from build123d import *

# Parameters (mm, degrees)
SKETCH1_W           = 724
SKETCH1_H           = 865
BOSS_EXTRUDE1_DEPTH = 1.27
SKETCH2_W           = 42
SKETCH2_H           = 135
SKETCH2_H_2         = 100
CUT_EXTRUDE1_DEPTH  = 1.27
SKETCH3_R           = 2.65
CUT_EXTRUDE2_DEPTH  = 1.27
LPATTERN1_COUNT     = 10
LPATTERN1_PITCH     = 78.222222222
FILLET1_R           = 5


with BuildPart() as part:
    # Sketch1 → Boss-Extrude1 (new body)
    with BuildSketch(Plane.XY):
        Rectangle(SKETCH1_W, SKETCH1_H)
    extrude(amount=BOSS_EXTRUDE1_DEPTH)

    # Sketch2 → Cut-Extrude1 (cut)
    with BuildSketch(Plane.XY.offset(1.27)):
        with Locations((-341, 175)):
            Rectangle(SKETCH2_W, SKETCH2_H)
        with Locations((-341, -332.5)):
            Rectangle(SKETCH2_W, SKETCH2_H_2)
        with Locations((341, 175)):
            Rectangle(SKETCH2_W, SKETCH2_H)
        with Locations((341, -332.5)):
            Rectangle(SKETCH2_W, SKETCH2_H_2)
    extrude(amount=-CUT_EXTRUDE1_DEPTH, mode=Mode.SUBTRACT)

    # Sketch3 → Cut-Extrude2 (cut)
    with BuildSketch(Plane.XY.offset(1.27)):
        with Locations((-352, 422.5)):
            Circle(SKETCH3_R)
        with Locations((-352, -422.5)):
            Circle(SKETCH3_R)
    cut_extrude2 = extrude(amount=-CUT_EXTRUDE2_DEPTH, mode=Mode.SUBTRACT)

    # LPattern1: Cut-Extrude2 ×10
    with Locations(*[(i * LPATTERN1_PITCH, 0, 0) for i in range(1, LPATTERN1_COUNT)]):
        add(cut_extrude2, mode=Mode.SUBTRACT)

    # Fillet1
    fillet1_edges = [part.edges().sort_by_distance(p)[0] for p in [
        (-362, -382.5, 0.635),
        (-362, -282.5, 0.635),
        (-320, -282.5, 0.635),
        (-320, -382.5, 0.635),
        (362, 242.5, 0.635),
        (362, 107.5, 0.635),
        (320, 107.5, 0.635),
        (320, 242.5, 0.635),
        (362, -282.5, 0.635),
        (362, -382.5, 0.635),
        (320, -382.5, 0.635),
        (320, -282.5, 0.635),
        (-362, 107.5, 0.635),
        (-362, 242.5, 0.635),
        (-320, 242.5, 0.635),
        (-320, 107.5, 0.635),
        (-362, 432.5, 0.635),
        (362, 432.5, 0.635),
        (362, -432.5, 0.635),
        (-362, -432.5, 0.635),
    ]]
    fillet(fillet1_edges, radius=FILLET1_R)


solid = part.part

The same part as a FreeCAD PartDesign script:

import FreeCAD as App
import Part
import Sketcher

V = App.Vector


def edges_at(feature, points):
    """Names of the edges that pass closest to the given points."""
    edges = feature.Shape.Edges
    near = lambda p: min(range(len(edges)), key=lambda i: edges[i].distToShape(Part.Vertex(*p))[0])
    return sorted({f"Edge{near(p) + 1}" for p in points})


def add_polygon(sketch, points):
    """Adds a closed chain of lines whose ends are joined by coincident constraints."""
    first, n = sketch.GeometryCount, len(points)
    for a, b in zip(points, points[1:] + points[:1]):
        sketch.addGeometry(Part.LineSegment(App.Vector(*a, 0), App.Vector(*b, 0)), False)
    for i in range(n):
        sketch.addConstraint(Sketcher.Constraint("Coincident", first + i, 2, first + (i + 1) % n, 1))

doc = App.newDocument("Part")
params = doc.addObject("Spreadsheet::Sheet", "Params")
for row, (alias, value) in enumerate([
    ("sketch1_width", "724 mm"),
    ("sketch1_height", "865 mm"),
    ("pad1_length", "1.27 mm"),
    ("sketch2_width", "42 mm"),
    ("sketch2_height", "135 mm"),
    ("sketch2_height2", "100 mm"),
    ("pocket1_length", "1.27 mm"),
    ("sketch3_diameter", "5.3 mm"),
    ("pocket2_length", "1.27 mm"),
    ("linearpattern_pitch", "78.222222 mm"),
    ("fillet_radius", "5 mm"),
], start=1):
    params.set(f"A{row}", alias)
    params.set(f"B{row}", "=" + value)
    params.setAlias(f"B{row}", alias)

body = doc.addObject("PartDesign::Body", "Body")

# Sketch on XY plane
sketch1 = body.newObject("Sketcher::SketchObject", "Sketch")
sketch1.AttachmentSupport = (doc.getObject("XY_Plane"), [""])
sketch1.MapMode = "FlatFace"
add_polygon(sketch1, [(-362, 432.5), (-362, -432.5), (362, -432.5), (362, 432.5)])  # lines 0-3
sketch1.addConstraint(Sketcher.Constraint("Vertical", 0))
sketch1.addConstraint(Sketcher.Constraint("Horizontal", 1))
sketch1.addConstraint(Sketcher.Constraint("Vertical", 2))
sketch1.addConstraint(Sketcher.Constraint("Horizontal", 3))
sketch1.addConstraint(Sketcher.Constraint("Symmetric", 0, 2, 2, 2, -1, 1))
sketch1.addConstraint(Sketcher.Constraint("DistanceX", 1, 1, 1, 2, 724.0))
sketch1.addConstraint(Sketcher.Constraint("DistanceY", 0, 2, 0, 1, 865.0))
sketch1.setExpression("Constraints[9]", "Params.sketch1_width")
sketch1.setExpression("Constraints[10]", "Params.sketch1_height")
pad1 = body.newObject("PartDesign::Pad", "Pad")
pad1.Profile = sketch1
pad1.setExpression("Length", "Params.pad1_length")

# Sketch on XY plane
sketch2 = body.newObject("Sketcher::SketchObject", "Sketch001")
sketch2.AttachmentSupport = (doc.getObject("XY_Plane"), [""])
sketch2.MapMode = "FlatFace"
sketch2.AttachmentOffset = App.Placement(V(0, 0, 1.27), App.Rotation())
add_polygon(sketch2, [(-362, 242.5), (-362, 107.5), (-320, 107.5), (-320, 242.5)])  # lines 0-3
add_polygon(sketch2, [(-362, -282.5), (-362, -382.5), (-320, -382.5), (-320, -282.5)])  # lines 4-7
add_polygon(sketch2, [(320, 242.5), (320, 107.5), (362, 107.5), (362, 242.5)])  # lines 8-11
add_polygon(sketch2, [(320, -282.5), (320, -382.5), (362, -382.5), (362, -282.5)])  # lines 12-15
sketch2.addConstraint(Sketcher.Constraint("Vertical", 0))
sketch2.addConstraint(Sketcher.Constraint("Horizontal", 1))
sketch2.addConstraint(Sketcher.Constraint("Vertical", 2))
sketch2.addConstraint(Sketcher.Constraint("Horizontal", 3))
sketch2.addConstraint(Sketcher.Constraint("Vertical", 4))
sketch2.addConstraint(Sketcher.Constraint("Horizontal", 5))
sketch2.addConstraint(Sketcher.Constraint("Vertical", 6))
sketch2.addConstraint(Sketcher.Constraint("Horizontal", 7))
sketch2.addConstraint(Sketcher.Constraint("Vertical", 8))
sketch2.addConstraint(Sketcher.Constraint("Horizontal", 9))
sketch2.addConstraint(Sketcher.Constraint("Vertical", 10))
sketch2.addConstraint(Sketcher.Constraint("Horizontal", 11))
sketch2.addConstraint(Sketcher.Constraint("Vertical", 12))
sketch2.addConstraint(Sketcher.Constraint("Horizontal", 13))
sketch2.addConstraint(Sketcher.Constraint("Vertical", 14))
sketch2.addConstraint(Sketcher.Constraint("Horizontal", 15))
sketch2.addConstraint(Sketcher.Constraint("Symmetric", 1, 2, 8, 2, -2))
sketch2.addConstraint(Sketcher.Constraint("Symmetric", 3, 2, 10, 2, -2))
sketch2.addConstraint(Sketcher.Constraint("Symmetric", 5, 2, 12, 2, -2))
sketch2.addConstraint(Sketcher.Constraint("Symmetric", 7, 2, 14, 2, -2))
sketch2.addConstraint(Sketcher.Constraint("Vertical", 3, 2, 4, 2))
sketch2.addConstraint(Sketcher.Constraint("Vertical", 2, 2, 5, 2))
sketch2.addConstraint(Sketcher.Constraint("DistanceX", 1, 1, 1, 2, 42.0))
sketch2.addConstraint(Sketcher.Constraint("DistanceY", 0, 2, 0, 1, 135.0))
sketch2.addConstraint(Sketcher.Constraint("DistanceY", 4, 2, 4, 1, 100.0))
sketch2.addConstraint(Sketcher.Constraint("DistanceX", 0, 2, -1, 1, 362.0))
sketch2.addConstraint(Sketcher.Constraint("DistanceY", 4, 2, 0, 2, 490.0))
sketch2.addConstraint(Sketcher.Constraint("DistanceY", -1, 1, 0, 2, 107.5))
sketch2.setExpression("Constraints[38]", "Params.sketch2_width")
sketch2.setExpression("Constraints[39]", "Params.sketch2_height")
sketch2.setExpression("Constraints[40]", "Params.sketch2_height2")
pocket1 = body.newObject("PartDesign::Pocket", "Pocket")
pocket1.Profile = sketch2
pocket1.setExpression("Length", "Params.pocket1_length")

# Sketch on XY plane
sketch3 = body.newObject("Sketcher::SketchObject", "Sketch002")
sketch3.AttachmentSupport = (doc.getObject("XY_Plane"), [""])
sketch3.MapMode = "FlatFace"
sketch3.AttachmentOffset = App.Placement(V(0, 0, 1.27), App.Rotation())
sketch3.addGeometry(Part.Circle(V(-352, 422.5, 0), V(0, 0, 1), 2.65), False)
sketch3.addGeometry(Part.Circle(V(-352, -422.5, 0), V(0, 0, 1), 2.65), False)
sketch3.addConstraint(Sketcher.Constraint("Equal", 0, 1))
sketch3.addConstraint(Sketcher.Constraint("Symmetric", 0, 3, 1, 3, -1))
sketch3.addConstraint(Sketcher.Constraint("Diameter", 0, 5.3))
sketch3.addConstraint(Sketcher.Constraint("DistanceX", 0, 3, -1, 1, 352.0))
sketch3.addConstraint(Sketcher.Constraint("DistanceY", 1, 3, 0, 3, 845.0))
sketch3.setExpression("Constraints[2]", "Params.sketch3_diameter")
pocket2 = body.newObject("PartDesign::Pocket", "Pocket001")
pocket2.Profile = sketch3
pocket2.setExpression("Length", "Params.pocket2_length")
doc.recompute()

linearpattern = body.newObject("PartDesign::LinearPattern", "LinearPattern")
linearpattern.Originals = [pocket2]
linearpattern.Direction = (doc.getObject("X_Axis"), [""])
linearpattern.Mode = "offset"
linearpattern.setExpression("Offset", "Params.linearpattern_pitch")
linearpattern.Occurrences = 10
body.Tip = linearpattern
doc.recompute()

fillet = body.newObject("PartDesign::Fillet", "Fillet")
fillet.Base = (linearpattern, edges_at(linearpattern, [
    (-362, -382.5, 0.635),
    (-362, -282.5, 0.635),
    (-320, -282.5, 0.635),
    (-320, -382.5, 0.635),
    (362, 242.5, 0.635),
    (362, 107.5, 0.635),
    (320, 107.5, 0.635),
    (320, 242.5, 0.635),
    (362, -282.5, 0.635),
    (362, -382.5, 0.635),
    (320, -382.5, 0.635),
    (320, -282.5, 0.635),
    (-362, 107.5, 0.635),
    (-362, 242.5, 0.635),
    (-320, 242.5, 0.635),
    (-320, 107.5, 0.635),
    (-362, 432.5, 0.635),
    (362, 432.5, 0.635),
    (362, -432.5, 0.635),
    (-362, -432.5, 0.635),
]))
fillet.setExpression("Radius", "Params.fillet_radius")

doc.recompute()
